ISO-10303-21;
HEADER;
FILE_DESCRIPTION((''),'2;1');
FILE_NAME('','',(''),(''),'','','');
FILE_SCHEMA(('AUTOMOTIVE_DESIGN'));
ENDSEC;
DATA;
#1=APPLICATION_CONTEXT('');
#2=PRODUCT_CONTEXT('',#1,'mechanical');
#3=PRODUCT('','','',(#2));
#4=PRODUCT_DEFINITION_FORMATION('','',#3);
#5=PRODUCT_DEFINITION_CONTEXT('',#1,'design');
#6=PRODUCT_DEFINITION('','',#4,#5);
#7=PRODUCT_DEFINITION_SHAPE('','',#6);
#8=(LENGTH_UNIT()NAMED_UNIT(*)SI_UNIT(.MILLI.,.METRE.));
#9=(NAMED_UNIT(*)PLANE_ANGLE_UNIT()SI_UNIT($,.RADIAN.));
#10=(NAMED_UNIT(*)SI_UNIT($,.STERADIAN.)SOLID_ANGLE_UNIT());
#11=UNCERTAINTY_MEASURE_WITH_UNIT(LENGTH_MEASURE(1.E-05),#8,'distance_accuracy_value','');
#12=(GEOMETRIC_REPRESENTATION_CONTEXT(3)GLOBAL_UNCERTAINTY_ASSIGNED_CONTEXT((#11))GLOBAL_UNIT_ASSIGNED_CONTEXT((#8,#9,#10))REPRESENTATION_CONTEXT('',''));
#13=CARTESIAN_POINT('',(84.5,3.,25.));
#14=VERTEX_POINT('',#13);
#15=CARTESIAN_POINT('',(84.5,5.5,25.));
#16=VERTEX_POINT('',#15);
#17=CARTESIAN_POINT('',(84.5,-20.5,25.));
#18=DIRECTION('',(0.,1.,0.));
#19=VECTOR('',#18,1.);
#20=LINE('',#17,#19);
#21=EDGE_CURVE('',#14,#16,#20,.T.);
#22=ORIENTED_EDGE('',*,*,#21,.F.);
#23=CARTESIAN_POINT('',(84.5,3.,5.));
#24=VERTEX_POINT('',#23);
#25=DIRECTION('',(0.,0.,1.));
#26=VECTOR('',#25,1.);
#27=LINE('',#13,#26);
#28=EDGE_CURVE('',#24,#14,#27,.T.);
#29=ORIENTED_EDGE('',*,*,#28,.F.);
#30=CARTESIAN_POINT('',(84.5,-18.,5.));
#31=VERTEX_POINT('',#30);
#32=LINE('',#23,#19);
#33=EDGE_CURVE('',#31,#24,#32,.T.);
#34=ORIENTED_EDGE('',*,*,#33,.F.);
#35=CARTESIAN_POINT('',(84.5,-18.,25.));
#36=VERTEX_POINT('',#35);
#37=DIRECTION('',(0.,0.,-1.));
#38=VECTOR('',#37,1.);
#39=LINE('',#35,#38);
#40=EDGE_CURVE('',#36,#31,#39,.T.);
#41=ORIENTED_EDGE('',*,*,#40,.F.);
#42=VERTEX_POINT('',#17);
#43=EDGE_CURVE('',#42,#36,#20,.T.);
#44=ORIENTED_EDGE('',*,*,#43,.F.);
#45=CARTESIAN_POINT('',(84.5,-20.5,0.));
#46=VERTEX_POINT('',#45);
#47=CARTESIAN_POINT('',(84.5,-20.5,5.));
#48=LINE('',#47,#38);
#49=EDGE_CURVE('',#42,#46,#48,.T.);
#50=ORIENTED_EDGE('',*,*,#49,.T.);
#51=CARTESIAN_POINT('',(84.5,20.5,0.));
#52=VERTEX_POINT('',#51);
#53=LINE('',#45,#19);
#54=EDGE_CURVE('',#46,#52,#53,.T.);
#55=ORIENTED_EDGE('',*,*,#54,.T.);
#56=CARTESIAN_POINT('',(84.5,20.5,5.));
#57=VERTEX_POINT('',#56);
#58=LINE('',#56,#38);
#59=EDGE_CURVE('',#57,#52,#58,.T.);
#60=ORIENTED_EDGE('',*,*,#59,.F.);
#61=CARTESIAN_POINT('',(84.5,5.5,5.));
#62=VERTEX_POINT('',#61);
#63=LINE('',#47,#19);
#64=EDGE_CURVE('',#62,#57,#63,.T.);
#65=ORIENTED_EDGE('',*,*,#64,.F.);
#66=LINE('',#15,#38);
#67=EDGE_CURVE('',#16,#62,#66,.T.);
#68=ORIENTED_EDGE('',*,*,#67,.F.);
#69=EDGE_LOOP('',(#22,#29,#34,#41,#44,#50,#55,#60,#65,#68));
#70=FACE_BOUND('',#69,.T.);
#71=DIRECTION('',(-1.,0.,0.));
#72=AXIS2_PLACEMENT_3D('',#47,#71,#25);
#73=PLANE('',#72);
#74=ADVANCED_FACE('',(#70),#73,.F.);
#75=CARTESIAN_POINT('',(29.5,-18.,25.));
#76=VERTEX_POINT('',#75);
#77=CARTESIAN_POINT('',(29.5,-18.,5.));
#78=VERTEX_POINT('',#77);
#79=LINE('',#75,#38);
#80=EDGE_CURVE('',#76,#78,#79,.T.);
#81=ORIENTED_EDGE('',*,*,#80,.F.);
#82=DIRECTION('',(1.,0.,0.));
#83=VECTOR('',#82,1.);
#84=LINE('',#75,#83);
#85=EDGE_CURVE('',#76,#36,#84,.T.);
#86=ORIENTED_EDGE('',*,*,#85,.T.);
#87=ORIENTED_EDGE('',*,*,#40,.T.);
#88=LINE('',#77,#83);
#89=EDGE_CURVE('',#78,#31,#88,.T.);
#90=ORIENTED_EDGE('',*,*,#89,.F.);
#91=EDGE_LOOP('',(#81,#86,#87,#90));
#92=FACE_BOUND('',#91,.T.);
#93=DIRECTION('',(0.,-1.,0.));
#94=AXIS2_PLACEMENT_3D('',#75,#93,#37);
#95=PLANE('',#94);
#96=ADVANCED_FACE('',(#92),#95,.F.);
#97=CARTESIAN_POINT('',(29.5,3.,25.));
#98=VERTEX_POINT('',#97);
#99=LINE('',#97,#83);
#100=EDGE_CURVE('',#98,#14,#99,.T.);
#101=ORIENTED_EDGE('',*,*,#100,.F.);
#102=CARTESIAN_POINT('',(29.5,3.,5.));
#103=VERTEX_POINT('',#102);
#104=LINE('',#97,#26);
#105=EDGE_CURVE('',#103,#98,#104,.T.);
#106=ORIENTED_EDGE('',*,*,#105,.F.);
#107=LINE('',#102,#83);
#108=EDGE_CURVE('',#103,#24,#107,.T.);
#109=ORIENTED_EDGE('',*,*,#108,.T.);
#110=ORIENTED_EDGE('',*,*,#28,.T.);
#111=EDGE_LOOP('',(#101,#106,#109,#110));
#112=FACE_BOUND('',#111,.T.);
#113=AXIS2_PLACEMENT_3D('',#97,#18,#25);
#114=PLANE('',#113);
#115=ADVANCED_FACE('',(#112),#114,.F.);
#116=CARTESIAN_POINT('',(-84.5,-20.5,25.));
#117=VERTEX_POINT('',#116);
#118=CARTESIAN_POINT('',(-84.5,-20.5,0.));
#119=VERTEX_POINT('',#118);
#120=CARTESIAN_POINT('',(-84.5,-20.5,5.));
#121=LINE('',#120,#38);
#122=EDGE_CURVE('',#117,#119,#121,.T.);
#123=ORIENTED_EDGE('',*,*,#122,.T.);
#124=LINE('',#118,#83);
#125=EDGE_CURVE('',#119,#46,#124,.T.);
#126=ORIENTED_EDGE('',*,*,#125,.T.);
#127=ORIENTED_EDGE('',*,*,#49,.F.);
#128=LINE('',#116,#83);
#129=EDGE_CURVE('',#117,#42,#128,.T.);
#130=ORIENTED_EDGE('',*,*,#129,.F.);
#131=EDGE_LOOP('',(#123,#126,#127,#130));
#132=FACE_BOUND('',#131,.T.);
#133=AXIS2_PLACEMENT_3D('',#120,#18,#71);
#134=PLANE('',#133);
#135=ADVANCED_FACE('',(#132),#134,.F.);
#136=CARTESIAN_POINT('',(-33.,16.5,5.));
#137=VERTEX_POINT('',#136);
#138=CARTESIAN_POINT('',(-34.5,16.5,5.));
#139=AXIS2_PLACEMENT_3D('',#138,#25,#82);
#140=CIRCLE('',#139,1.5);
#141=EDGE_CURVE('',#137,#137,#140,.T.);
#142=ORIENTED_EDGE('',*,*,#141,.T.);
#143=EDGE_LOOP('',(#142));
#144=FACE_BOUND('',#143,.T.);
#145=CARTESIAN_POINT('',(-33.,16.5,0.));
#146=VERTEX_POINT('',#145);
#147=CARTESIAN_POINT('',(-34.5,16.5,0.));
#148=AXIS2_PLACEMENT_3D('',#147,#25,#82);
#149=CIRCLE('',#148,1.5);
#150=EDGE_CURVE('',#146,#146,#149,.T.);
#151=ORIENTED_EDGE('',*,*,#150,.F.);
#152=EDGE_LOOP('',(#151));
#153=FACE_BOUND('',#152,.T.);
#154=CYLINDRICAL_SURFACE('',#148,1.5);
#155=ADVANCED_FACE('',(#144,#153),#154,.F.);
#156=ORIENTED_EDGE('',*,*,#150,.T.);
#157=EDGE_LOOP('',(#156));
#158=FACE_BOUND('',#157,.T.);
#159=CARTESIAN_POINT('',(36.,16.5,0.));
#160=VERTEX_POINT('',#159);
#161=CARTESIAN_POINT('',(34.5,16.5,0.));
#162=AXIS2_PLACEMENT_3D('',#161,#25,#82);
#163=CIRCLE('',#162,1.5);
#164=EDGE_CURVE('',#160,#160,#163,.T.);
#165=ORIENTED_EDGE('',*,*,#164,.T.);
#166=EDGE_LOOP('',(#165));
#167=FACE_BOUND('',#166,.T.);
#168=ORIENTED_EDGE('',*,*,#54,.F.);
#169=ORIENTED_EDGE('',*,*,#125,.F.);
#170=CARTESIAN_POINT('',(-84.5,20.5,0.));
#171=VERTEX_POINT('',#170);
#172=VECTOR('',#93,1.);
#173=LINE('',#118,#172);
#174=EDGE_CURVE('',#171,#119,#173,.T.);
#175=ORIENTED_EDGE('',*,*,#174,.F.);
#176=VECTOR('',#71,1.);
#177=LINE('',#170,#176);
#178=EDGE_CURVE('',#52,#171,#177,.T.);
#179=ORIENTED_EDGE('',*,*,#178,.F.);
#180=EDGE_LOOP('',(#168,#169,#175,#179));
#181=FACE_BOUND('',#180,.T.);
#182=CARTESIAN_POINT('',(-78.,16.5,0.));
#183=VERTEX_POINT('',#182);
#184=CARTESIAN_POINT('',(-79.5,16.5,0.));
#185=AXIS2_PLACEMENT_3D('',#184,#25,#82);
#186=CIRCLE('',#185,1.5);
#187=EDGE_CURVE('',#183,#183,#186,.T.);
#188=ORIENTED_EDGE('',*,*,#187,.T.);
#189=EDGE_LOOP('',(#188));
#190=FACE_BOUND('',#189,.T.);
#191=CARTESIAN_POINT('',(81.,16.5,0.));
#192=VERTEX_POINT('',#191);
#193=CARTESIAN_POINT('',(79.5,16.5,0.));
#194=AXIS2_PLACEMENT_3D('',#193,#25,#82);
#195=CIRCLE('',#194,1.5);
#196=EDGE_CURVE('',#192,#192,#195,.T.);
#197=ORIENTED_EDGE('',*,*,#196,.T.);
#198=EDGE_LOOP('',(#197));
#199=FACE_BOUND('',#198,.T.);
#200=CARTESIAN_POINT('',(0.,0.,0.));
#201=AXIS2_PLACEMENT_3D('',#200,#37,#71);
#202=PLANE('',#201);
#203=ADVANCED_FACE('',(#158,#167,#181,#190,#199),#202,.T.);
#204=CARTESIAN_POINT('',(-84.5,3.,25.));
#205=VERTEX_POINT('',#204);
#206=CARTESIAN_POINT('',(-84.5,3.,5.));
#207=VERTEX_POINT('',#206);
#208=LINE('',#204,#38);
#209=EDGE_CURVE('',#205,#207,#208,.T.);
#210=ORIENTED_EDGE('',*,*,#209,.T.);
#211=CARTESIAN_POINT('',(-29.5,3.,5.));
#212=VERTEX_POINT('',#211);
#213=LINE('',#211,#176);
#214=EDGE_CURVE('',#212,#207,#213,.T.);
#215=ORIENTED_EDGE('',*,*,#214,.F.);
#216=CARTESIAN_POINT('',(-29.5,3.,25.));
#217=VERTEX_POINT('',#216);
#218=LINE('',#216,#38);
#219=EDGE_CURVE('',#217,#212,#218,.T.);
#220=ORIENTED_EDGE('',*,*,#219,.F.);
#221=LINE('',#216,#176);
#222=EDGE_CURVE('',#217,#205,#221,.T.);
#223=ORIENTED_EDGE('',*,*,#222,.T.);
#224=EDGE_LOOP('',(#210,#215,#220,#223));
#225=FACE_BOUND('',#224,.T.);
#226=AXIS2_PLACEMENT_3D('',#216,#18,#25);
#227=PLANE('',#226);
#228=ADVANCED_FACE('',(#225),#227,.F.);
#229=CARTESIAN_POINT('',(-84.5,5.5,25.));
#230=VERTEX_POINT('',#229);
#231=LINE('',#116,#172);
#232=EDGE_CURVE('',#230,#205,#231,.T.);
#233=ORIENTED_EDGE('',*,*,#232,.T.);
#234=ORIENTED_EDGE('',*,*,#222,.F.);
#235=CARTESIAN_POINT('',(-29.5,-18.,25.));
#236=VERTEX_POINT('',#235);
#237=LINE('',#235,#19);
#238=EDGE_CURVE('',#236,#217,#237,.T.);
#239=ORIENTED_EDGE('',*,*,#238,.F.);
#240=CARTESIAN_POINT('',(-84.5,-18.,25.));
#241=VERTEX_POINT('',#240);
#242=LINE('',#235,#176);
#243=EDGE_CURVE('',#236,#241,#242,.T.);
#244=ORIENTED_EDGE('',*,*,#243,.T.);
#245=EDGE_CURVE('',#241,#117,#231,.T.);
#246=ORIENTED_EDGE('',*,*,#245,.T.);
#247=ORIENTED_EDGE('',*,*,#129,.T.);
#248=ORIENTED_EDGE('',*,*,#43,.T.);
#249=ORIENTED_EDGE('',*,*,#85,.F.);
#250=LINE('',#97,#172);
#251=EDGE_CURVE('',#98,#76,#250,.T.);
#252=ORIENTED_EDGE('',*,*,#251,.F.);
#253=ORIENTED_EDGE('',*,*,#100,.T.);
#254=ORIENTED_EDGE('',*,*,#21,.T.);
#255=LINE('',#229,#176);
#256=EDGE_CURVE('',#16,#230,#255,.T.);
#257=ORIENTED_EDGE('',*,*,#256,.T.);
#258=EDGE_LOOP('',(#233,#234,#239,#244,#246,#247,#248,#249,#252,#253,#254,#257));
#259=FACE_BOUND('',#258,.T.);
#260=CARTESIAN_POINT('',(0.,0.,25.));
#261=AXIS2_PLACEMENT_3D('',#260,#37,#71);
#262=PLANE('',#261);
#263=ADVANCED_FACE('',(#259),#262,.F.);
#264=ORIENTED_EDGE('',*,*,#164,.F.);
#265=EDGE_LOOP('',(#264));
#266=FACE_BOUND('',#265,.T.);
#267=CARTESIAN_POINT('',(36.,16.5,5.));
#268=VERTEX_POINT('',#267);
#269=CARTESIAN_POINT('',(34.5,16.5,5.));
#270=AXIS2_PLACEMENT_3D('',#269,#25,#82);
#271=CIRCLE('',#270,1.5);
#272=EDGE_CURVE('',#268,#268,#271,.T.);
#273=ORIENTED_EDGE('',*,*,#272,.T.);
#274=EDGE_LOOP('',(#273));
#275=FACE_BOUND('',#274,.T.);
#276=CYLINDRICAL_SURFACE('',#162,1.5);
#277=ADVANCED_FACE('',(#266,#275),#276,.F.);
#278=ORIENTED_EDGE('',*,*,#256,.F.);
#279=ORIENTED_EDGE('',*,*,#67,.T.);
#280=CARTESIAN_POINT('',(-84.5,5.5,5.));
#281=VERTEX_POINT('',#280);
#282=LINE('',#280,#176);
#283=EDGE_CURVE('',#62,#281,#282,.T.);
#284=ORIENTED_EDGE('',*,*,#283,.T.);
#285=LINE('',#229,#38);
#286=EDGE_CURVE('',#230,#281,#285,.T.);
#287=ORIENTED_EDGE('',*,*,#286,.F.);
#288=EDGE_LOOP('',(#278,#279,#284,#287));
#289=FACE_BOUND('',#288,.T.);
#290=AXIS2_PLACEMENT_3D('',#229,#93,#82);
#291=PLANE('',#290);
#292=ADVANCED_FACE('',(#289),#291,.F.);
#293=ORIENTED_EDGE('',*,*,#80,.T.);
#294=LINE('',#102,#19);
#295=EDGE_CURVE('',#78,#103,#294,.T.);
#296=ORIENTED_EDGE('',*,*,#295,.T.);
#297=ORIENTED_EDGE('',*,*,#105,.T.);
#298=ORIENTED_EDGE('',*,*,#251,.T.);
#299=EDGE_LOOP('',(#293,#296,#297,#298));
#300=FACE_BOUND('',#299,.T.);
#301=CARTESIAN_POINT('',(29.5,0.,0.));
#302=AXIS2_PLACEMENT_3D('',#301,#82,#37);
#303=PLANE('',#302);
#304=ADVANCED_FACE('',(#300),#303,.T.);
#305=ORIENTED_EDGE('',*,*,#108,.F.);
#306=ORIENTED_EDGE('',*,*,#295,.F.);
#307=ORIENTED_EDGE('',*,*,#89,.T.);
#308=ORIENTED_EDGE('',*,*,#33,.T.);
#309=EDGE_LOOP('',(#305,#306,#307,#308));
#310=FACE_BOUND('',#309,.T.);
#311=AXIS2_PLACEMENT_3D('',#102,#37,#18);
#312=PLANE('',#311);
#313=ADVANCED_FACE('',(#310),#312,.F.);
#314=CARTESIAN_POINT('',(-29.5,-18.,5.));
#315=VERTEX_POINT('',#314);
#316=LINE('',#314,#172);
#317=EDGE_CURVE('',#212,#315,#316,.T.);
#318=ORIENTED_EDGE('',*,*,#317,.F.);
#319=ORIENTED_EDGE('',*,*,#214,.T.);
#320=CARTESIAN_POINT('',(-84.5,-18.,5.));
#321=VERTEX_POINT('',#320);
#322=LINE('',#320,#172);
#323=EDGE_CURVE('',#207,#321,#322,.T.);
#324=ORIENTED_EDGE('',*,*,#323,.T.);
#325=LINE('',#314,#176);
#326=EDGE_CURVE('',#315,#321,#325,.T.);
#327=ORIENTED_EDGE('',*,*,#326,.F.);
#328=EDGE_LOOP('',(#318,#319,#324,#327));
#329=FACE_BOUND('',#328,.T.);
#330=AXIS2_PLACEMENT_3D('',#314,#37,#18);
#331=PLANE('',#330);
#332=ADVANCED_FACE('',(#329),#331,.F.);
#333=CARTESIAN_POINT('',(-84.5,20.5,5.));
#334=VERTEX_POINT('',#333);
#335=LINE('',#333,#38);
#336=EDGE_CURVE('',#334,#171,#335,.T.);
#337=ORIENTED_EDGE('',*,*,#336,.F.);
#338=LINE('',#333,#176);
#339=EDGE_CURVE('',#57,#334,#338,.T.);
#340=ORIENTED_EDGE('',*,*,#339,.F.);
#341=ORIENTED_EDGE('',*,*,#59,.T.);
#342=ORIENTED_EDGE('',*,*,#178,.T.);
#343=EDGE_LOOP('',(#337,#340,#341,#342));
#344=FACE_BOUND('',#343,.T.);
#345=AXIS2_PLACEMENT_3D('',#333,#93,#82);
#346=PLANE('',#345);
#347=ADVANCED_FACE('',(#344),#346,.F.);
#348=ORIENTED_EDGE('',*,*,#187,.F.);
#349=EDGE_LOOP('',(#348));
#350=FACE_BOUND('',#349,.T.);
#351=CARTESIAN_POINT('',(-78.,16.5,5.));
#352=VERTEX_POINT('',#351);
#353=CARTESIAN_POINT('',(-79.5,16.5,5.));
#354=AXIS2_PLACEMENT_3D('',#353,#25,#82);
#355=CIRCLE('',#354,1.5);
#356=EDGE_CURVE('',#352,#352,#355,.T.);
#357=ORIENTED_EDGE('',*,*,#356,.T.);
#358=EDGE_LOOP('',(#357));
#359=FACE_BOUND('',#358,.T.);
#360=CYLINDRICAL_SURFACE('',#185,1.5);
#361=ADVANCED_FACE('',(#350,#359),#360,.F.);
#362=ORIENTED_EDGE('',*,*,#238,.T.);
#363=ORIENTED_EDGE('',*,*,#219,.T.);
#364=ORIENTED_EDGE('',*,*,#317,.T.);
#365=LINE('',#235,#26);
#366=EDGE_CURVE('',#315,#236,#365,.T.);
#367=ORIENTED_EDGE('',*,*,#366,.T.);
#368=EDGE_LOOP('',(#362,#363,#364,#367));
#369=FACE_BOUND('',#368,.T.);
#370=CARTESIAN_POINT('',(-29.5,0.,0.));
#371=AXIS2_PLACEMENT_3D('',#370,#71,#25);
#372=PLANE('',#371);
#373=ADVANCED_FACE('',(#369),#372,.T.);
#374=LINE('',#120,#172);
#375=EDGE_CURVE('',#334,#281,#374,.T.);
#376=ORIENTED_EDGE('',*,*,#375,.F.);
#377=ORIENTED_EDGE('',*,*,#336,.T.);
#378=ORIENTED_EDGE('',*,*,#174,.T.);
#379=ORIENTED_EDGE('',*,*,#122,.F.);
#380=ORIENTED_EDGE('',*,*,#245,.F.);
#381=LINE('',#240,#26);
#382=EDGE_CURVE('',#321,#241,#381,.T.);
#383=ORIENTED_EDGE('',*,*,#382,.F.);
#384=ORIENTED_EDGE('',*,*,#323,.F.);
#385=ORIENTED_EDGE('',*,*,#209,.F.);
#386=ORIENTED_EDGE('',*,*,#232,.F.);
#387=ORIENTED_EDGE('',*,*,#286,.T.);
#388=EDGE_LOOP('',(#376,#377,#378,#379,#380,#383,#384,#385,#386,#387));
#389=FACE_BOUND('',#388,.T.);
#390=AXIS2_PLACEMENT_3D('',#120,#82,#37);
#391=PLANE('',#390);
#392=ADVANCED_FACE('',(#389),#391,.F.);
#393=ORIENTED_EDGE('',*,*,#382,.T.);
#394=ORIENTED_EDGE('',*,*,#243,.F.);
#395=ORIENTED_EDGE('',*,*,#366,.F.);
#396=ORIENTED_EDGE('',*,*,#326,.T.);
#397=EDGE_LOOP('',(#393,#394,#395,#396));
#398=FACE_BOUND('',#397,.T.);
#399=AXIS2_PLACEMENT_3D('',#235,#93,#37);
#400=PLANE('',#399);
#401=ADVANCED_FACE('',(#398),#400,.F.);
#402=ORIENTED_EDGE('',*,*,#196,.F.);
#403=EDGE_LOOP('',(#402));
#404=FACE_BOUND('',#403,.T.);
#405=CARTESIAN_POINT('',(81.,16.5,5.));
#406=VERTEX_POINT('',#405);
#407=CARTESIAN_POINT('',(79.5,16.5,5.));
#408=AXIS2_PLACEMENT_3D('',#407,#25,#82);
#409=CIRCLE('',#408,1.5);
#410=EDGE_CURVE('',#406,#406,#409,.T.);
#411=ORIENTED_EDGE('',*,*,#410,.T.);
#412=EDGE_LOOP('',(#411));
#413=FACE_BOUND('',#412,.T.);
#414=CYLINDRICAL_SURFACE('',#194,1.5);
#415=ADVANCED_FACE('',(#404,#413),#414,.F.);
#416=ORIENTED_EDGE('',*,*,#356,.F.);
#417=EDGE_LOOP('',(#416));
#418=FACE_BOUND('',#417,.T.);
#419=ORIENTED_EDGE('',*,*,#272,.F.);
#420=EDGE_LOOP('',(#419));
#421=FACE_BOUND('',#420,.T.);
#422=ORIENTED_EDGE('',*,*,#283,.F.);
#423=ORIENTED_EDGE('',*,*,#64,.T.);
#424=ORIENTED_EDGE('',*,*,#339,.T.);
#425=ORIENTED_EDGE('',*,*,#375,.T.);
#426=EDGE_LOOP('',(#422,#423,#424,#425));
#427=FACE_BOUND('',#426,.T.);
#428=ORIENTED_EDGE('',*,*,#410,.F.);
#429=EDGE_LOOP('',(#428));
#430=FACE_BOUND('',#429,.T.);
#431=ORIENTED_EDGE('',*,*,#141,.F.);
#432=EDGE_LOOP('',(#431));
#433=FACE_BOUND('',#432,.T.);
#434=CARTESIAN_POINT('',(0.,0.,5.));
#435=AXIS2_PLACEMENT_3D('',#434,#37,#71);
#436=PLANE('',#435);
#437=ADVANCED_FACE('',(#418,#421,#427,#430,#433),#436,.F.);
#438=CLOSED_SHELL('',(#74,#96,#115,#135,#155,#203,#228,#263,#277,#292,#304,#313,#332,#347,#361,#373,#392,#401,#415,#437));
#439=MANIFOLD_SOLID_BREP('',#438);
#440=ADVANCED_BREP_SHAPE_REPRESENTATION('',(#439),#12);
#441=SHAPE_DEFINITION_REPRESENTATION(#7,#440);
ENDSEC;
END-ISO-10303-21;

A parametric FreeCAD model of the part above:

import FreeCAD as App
import Part
import Sketcher

V = App.Vector


def add_polygon(sketch, points):
    """Adds a closed chain of lines whose ends are joined by coincident constraints."""
    first, n = sketch.GeometryCount, len(points)
    for a, b in zip(points, points[1:] + points[:1]):
        sketch.addGeometry(Part.LineSegment(App.Vector(*a, 0), App.Vector(*b, 0)), False)
    for i in range(n):
        sketch.addConstraint(Sketcher.Constraint("Coincident", first + i, 2, first + (i + 1) % n, 1))

doc = App.newDocument("Part")
body = doc.addObject("PartDesign::Body", "Body")

# Sketch on XY plane
sketch1 = body.newObject("Sketcher::SketchObject", "Sketch")
sketch1.AttachmentSupport = (doc.getObject("XY_Plane"), [""])
sketch1.MapMode = "FlatFace"
add_polygon(sketch1, [(-84, 20), (-84, -20), (84, -20), (84, 20)])  # lines 0-3
sketch1.addConstraint(Sketcher.Constraint("Vertical", 0))
sketch1.addConstraint(Sketcher.Constraint("Horizontal", 1))
sketch1.addConstraint(Sketcher.Constraint("Vertical", 2))
sketch1.addConstraint(Sketcher.Constraint("Horizontal", 3))
sketch1.addConstraint(Sketcher.Constraint("Symmetric", 0, 2, 2, 2, -1, 1))
sketch1.addConstraint(Sketcher.Constraint("DistanceX", 1, 1, 1, 2, 169.0))
sketch1.addConstraint(Sketcher.Constraint("DistanceY", 0, 2, 0, 1, 41.0))
pad1 = body.newObject("PartDesign::Pad", "Pad")
pad1.Profile = sketch1
pad1.Length = 5

# Sketch on XY plane
sketch2 = body.newObject("Sketcher::SketchObject", "Sketch001")
sketch2.AttachmentSupport = (doc.getObject("XY_Plane"), [""])
sketch2.MapMode = "FlatFace"
sketch2.AttachmentOffset = App.Placement(V(0, 0, 5), App.Rotation())
sketch2.addGeometry(Part.Circle(V(79.5, 16.5, 0), V(0, 0, 1), 1.5), False)
sketch2.addGeometry(Part.Circle(V(34.5, 16.5, 0), V(0, 0, 1), 1.5), False)
sketch2.addGeometry(Part.Circle(V(-34.5, 16.5, 0), V(0, 0, 1), 1.5), False)
sketch2.addGeometry(Part.Circle(V(-79.5, 16.5, 0), V(0, 0, 1), 1.5), False)
sketch2.addConstraint(Sketcher.Constraint("Equal", 0, 1))
sketch2.addConstraint(Sketcher.Constraint("Equal", 1, 2))
sketch2.addConstraint(Sketcher.Constraint("Equal", 2, 3))
sketch2.addConstraint(Sketcher.Constraint("Symmetric", 1, 3, 2, 3, -2))
sketch2.addConstraint(Sketcher.Constraint("Symmetric", 0, 3, 3, 3, -2))
sketch2.addConstraint(Sketcher.Constraint("Horizontal", 0, 3, 1, 3))
sketch2.addConstraint(Sketcher.Constraint("Diameter", 0, 3.0))
sketch2.addConstraint(Sketcher.Constraint("DistanceX", 1, 3, 0, 3, 45.0))
sketch2.addConstraint(Sketcher.Constraint("DistanceX", 2, 3, 1, 3, 69.0))
sketch2.addConstraint(Sketcher.Constraint("DistanceY", -1, 1, 0, 3, 16.5))
pocket1 = body.newObject("PartDesign::Pocket", "Pocket")
pocket1.Profile = sketch2
pocket1.Length = 5

# Sketch on XY plane
sketch3 = body.newObject("Sketcher::SketchObject", "Sketch002")
sketch3.AttachmentSupport = (doc.getObject("XY_Plane"), [""])
sketch3.MapMode = "FlatFace"
sketch3.AttachmentOffset = App.Placement(V(0, 0, 5), App.Rotation())
add_polygon(sketch3, [(-84, 6), (-84, -20), (84, -20), (84, 6)])  # lines 0-3
sketch3.addConstraint(Sketcher.Constraint("Vertical", 0))
sketch3.addConstraint(Sketcher.Constraint("Horizontal", 1))
sketch3.addConstraint(Sketcher.Constraint("Vertical", 2))
sketch3.addConstraint(Sketcher.Constraint("Horizontal", 3))
sketch3.addConstraint(Sketcher.Constraint("DistanceX", 1, 1, 1, 2, 169.0))
sketch3.addConstraint(Sketcher.Constraint("DistanceY", 0, 2, 0, 1, 26.0))
sketch3.addConstraint(Sketcher.Constraint("DistanceX", 0, 2, -1, 1, 84.5))
sketch3.addConstraint(Sketcher.Constraint("DistanceY", 0, 2, -1, 1, 20.5))
pad2 = body.newObject("PartDesign::Pad", "Pad001")
pad2.Profile = sketch3
pad2.Length = 20

# Sketch on YZ plane
sketch4 = body.newObject("Sketcher::SketchObject", "Sketch003")
sketch4.AttachmentSupport = (doc.getObject("YZ_Plane"), [""])
sketch4.MapMode = "FlatFace"
sketch4.AttachmentOffset = App.Placement(V(0, 0, -84.5), App.Rotation())
add_polygon(sketch4, [(3, 5), (-18, 5), (-18, 25), (3, 25)])  # lines 0-3
sketch4.addConstraint(Sketcher.Constraint("Horizontal", 0))
sketch4.addConstraint(Sketcher.Constraint("Vertical", 1))
sketch4.addConstraint(Sketcher.Constraint("Horizontal", 2))
sketch4.addConstraint(Sketcher.Constraint("Vertical", 3))
sketch4.addConstraint(Sketcher.Constraint("DistanceX", 0, 2, 0, 1, 21.0))
sketch4.addConstraint(Sketcher.Constraint("DistanceY", 1, 1, 1, 2, 20.0))
sketch4.addConstraint(Sketcher.Constraint("DistanceX", 0, 2, -1, 1, 18.0))
sketch4.addConstraint(Sketcher.Constraint("DistanceY", -1, 1, 0, 2, 5.0))
pocket2 = body.newObject("PartDesign::Pocket", "Pocket001")
pocket2.Profile = sketch4
pocket2.Length = 55
pocket2.Reversed = True

# Sketch on YZ plane
sketch5 = body.newObject("Sketcher::SketchObject", "Sketch004")
sketch5.AttachmentSupport = (doc.getObject("YZ_Plane"), [""])
sketch5.MapMode = "FlatFace"
sketch5.AttachmentOffset = App.Placement(V(0, 0, 84.5), App.Rotation())
add_polygon(sketch5, [(3, 25), (-18, 25), (-18, 5), (3, 5)])  # lines 0-3
sketch5.addConstraint(Sketcher.Constraint("Horizontal", 0))
sketch5.addConstraint(Sketcher.Constraint("Vertical", 1))
sketch5.addConstraint(Sketcher.Constraint("Horizontal", 2))
sketch5.addConstraint(Sketcher.Constraint("Vertical", 3))
sketch5.addConstraint(Sketcher.Constraint("DistanceX", 0, 2, 0, 1, 21.0))
sketch5.addConstraint(Sketcher.Constraint("DistanceY", 1, 2, 1, 1, 20.0))
sketch5.addConstraint(Sketcher.Constraint("DistanceX", 0, 2, -1, 1, 18.0))
sketch5.addConstraint(Sketcher.Constraint("DistanceY", -1, 1, 0, 2, 25.0))
pocket3 = body.newObject("PartDesign::Pocket", "Pocket002")
pocket3.Profile = sketch5
pocket3.Length = 55

doc.recompute()
